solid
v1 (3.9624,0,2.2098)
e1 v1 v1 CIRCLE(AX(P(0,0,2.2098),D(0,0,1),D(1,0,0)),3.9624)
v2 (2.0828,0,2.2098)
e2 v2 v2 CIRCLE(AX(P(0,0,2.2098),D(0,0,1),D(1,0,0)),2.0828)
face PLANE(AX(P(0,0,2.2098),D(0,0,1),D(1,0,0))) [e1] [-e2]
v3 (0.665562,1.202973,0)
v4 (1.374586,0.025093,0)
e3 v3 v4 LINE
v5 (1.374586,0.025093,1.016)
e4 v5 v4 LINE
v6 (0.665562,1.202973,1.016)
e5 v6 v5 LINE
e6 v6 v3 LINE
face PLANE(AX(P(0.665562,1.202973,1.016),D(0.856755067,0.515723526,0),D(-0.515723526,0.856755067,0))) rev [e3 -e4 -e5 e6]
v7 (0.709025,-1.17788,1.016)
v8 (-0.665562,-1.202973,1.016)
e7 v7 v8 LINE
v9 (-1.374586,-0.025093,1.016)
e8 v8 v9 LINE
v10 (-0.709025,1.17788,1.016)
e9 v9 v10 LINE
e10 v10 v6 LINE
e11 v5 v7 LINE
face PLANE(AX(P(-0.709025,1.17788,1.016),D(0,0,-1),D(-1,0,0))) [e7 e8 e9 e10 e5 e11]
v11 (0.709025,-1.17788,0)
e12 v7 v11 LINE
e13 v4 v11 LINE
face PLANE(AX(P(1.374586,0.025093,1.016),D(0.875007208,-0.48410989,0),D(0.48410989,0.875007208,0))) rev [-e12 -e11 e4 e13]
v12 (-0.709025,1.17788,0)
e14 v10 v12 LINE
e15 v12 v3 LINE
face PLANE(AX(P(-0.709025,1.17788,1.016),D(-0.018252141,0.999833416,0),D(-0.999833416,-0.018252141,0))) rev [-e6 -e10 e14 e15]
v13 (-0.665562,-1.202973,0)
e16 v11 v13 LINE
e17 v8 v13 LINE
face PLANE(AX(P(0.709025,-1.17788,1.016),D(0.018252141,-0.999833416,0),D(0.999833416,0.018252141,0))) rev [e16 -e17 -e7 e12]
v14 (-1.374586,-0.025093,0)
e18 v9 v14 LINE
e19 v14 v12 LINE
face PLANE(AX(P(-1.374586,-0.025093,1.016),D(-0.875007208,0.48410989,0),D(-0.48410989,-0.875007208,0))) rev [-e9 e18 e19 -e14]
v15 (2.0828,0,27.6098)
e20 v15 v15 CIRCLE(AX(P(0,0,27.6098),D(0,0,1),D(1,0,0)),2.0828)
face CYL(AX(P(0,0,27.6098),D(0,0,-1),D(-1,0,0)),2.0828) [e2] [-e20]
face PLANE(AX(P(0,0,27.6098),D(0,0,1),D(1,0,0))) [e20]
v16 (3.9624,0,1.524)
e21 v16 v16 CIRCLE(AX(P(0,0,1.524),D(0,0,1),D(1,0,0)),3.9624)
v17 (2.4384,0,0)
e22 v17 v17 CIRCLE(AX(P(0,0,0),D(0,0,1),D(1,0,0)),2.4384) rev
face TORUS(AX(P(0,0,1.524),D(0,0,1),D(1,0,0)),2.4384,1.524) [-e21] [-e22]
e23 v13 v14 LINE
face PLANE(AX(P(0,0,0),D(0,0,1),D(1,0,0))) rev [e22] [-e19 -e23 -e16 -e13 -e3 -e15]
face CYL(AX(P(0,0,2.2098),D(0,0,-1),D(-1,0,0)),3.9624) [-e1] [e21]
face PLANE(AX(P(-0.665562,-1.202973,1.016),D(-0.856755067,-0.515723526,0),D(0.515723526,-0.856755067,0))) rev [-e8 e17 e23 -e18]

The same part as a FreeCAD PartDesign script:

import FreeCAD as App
import Part
import Sketcher
Q = App.Units.Quantity


def edges_at(feature, points):
    """Names of the edges that pass closest to the given points."""
    edges = feature.Shape.Edges
    near = lambda p: min(range(len(edges)), key=lambda i: edges[i].distToShape(Part.Vertex(*p))[0])
    return sorted({f"Edge{near(p) + 1}" for p in points})


def add_polygon(sketch, points):
    """Adds a closed chain of lines whose ends are joined by coincident constraints."""
    first, n = sketch.GeometryCount, len(points)
    for a, b in zip(points, points[1:] + points[:1]):
        sketch.addGeometry(Part.LineSegment(App.Vector(*a, 0), App.Vector(*b, 0)), False)
    for i in range(n):
        sketch.addConstraint(Sketcher.Constraint("Coincident", first + i, 2, first + (i + 1) % n, 1))

doc = App.newDocument("Part")
body = doc.addObject("PartDesign::Body", "Body")

# Sketch on XY plane
sketch1 = body.newObject("Sketcher::SketchObject", "Sketch")
sketch1.AttachmentSupport = (doc.getObject("XY_Plane"), [""])
sketch1.MapMode = "FlatFace"
sketch1.addGeometry(Part.Circle(App.Vector(0, 0, 0), App.Vector(0, 0, 1), 4), False)
sketch1.addConstraint([
    Sketcher.Constraint("Coincident", 0, 3, -1, 1),
    Sketcher.Constraint("Diameter", 0, Q("0.312 in")),
])
pad1 = body.newObject("PartDesign::Pad", "Pad")
pad1.Profile = sketch1
pad1.Length = Q("0.087 in")
doc.recompute()

fillet = body.newObject("PartDesign::Fillet", "Fillet")
fillet.Base = (pad1, edges_at(pad1, [(-3.962, 0, 0)]))
fillet.Radius = Q("0.06 in")

# Sketch on XY plane
sketch2 = body.newObject("Sketcher::SketchObject", "Sketch001")
sketch2.AttachmentSupport = (doc.getObject("XY_Plane"), [""])
sketch2.MapMode = "FlatFace"
sketch2.AttachmentOffset = App.Placement(App.Vector(0, 0, 0.087 * 25.4), App.Rotation())
sketch2.addGeometry(Part.Circle(App.Vector(0, 0, 0), App.Vector(0, 0, 1), 2.1), False)
sketch2.addConstraint([
    Sketcher.Constraint("Coincident", 0, 3, -1, 1),
    Sketcher.Constraint("Diameter", 0, Q("0.164 in")),
])
pad2 = body.newObject("PartDesign::Pad", "Pad001")
pad2.Profile = sketch2
pad2.Length = Q("1 in")

# Sketch on XY plane
sketch3 = body.newObject("Sketcher::SketchObject", "Sketch002")
sketch3.AttachmentSupport = (doc.getObject("XY_Plane"), [""])
sketch3.MapMode = "FlatFace"
add_polygon(sketch3, [(-0.7, 1.2), (0.7, 1.2), (1.4, 0), (0.7, -1.2), (-0.7, -1.2), (-1.4, 0)])  # lines 0-5
sketch3.addConstraint([
    Sketcher.Constraint("Symmetric", 0, 2, 3, 2, -1, 1),
    Sketcher.Constraint("Symmetric", 1, 2, 4, 2, -1, 1),
    Sketcher.Constraint("Symmetric", 2, 2, 5, 2, -1, 1),
    Sketcher.Constraint("Equal", 0, 1),
    Sketcher.Constraint("Equal", 1, 2),
    Sketcher.Constraint("DistanceX", -1, 1, 0, 2, 0.665562),
    Sketcher.Constraint("DistanceY", 2, 2, -1, 1, 1.17788),
    Sketcher.Constraint("DistanceY", 1, 2, 0, 2, 1.17788),
    Sketcher.Constraint("DistanceX", 2, 2, 1, 2, 0.665562),
])
pocket1 = body.newObject("PartDesign::Pocket", "Pocket")
pocket1.Profile = sketch3
pocket1.Length = Q("0.04 in")
pocket1.Reversed = True

doc.recompute()
